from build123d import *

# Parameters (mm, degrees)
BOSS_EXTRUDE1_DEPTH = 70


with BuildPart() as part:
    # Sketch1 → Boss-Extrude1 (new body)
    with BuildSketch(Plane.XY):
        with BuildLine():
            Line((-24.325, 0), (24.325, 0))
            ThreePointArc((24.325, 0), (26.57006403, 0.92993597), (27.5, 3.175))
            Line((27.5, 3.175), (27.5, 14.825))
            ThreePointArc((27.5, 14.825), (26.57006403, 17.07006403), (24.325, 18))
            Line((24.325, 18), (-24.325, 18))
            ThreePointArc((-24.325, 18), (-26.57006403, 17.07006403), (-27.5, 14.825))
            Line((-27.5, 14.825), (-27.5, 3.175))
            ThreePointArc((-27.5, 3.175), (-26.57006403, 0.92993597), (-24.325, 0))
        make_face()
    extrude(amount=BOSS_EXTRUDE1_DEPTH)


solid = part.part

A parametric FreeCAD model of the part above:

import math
import FreeCAD as App
import Part
import Sketcher

V = App.Vector

doc = App.newDocument("Part")
params = doc.addObject("Spreadsheet::Sheet", "Params")
for row, (alias, value) in enumerate([
    ("sketch1_width", "48.65 mm"),
    ("pad1_length", "70 mm"),
], start=1):
    params.set(f"A{row}", alias)
    params.set(f"B{row}", "=" + value)
    params.setAlias(f"B{row}", alias)

body = doc.addObject("PartDesign::Body", "Body")

sketch1 = doc.addObject("Sketcher::SketchObject", "Sketch")
body.addObject(sketch1)
sketch1.AttachmentSupport = (doc.XY_Plane, [""])
sketch1.MapMode = "FlatFace"
sketch1.addGeometry(Part.LineSegment(V(-24.3, 0, 0), V(24.3, 0, 0)), False)
sketch1.addGeometry(Part.ArcOfCircle(Part.Circle(V(24.3, 3.2, 0), V(0, 0, 1), 3.2), math.radians(-90), math.radians(0)), False)
sketch1.addGeometry(Part.LineSegment(V(27.5, 3.2, 0), V(27.5, 14.8, 0)), False)
sketch1.addGeometry(Part.ArcOfCircle(Part.Circle(V(24.3, 14.8, 0), V(0, 0, 1), 3.2), math.radians(0), math.radians(90)), False)
sketch1.addGeometry(Part.LineSegment(V(24.3, 18, 0), V(-24.3, 18, 0)), False)
sketch1.addGeometry(Part.ArcOfCircle(Part.Circle(V(-24.3, 14.8, 0), V(0, 0, 1), 3.2), math.radians(90), math.radians(180)), False)
sketch1.addGeometry(Part.LineSegment(V(-27.5, 14.8, 0), V(-27.5, 3.2, 0)), False)
sketch1.addGeometry(Part.ArcOfCircle(Part.Circle(V(-24.3, 3.2, 0), V(0, 0, 1), 3.2), math.radians(-180), math.radians(-90)), False)
sketch1.addConstraint(Sketcher.Constraint("Tangent", 0, 2, 1, 1))
sketch1.addConstraint(Sketcher.Constraint("Tangent", 1, 2, 2, 1))
sketch1.addConstraint(Sketcher.Constraint("Tangent", 2, 2, 3, 1))
sketch1.addConstraint(Sketcher.Constraint("Tangent", 3, 2, 4, 1))
sketch1.addConstraint(Sketcher.Constraint("Tangent", 4, 2, 5, 1))
sketch1.addConstraint(Sketcher.Constraint("Tangent", 5, 2, 6, 1))
sketch1.addConstraint(Sketcher.Constraint("Tangent", 6, 2, 7, 1))
sketch1.addConstraint(Sketcher.Constraint("Tangent", 7, 2, 0, 1))
sketch1.addConstraint(Sketcher.Constraint("Horizontal", 0))
sketch1.addConstraint(Sketcher.Constraint("Vertical", 2))
sketch1.addConstraint(Sketcher.Constraint("Horizontal", 4))
sketch1.addConstraint(Sketcher.Constraint("Vertical", 6))
sketch1.addConstraint(Sketcher.Constraint("Equal", 1, 3))
sketch1.addConstraint(Sketcher.Constraint("Equal", 3, 5))
sketch1.addConstraint(Sketcher.Constraint("Equal", 5, 7))
sketch1.addConstraint(Sketcher.Constraint("Symmetric", 0, 2, 7, 2, -1, 1))
sketch1.addConstraint(Sketcher.Constraint("DistanceY", -1, 1, 3, 2, 18.0))
sketch1.addConstraint(Sketcher.Constraint("Radius", 1, 3.175))
sketch1.addConstraint(Sketcher.Constraint("DistanceX", 0, 1, 0, 2, 48.65))
sketch1.setExpression("Constraints[18]", "Params.sketch1_width")
pad1 = doc.addObject("PartDesign::Pad", "Pad")
body.addObject(pad1)
pad1.Profile = sketch1
pad1.setExpression("Length", "Params.pad1_length")

doc.recompute()
